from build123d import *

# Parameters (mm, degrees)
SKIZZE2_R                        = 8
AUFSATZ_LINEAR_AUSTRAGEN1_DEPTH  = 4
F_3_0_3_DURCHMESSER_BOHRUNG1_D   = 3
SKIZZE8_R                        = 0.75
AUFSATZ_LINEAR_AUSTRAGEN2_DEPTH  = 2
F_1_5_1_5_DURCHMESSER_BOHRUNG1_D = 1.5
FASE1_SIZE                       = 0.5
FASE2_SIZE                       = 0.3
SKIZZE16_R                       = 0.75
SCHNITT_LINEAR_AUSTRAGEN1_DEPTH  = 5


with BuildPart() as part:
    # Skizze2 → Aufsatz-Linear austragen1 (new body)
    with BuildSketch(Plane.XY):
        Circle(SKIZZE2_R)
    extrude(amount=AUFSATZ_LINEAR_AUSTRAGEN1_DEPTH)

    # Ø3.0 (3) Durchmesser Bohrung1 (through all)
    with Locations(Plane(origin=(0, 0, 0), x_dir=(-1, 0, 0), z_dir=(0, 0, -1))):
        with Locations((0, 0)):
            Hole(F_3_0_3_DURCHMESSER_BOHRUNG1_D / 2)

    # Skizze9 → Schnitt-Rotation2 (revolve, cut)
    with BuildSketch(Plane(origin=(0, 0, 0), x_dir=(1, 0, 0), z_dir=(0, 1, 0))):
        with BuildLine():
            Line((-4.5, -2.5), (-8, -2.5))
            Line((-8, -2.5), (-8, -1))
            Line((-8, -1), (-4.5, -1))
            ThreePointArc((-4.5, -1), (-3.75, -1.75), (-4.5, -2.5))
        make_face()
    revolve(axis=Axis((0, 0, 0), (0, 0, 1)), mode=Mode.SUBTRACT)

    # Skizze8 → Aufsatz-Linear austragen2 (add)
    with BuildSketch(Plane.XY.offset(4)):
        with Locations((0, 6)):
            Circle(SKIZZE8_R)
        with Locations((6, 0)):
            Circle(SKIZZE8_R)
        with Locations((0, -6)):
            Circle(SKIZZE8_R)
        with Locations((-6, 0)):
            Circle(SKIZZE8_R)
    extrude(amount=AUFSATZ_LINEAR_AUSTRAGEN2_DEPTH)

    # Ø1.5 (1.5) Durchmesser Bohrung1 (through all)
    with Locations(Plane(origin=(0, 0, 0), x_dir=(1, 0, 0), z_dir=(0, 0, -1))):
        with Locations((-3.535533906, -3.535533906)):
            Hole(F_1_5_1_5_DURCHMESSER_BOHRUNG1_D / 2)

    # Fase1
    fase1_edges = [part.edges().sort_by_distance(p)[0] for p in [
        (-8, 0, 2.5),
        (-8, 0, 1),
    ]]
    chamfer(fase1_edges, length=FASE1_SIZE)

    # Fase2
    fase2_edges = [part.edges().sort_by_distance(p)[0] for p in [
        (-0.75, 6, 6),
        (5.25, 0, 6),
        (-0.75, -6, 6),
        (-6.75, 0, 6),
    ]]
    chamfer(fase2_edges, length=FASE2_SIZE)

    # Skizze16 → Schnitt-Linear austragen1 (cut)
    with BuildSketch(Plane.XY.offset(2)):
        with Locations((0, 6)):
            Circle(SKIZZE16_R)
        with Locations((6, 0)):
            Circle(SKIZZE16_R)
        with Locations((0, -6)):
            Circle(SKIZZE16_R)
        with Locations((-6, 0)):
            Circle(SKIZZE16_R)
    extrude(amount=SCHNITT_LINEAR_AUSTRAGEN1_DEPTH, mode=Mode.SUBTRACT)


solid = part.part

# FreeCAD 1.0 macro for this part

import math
import FreeCAD as App
import Part
import Sketcher

V = App.Vector


def edges_at(feature, points):
    """Names of the edges that pass closest to the given points."""
    edges = feature.Shape.Edges
    near = lambda p: min(range(len(edges)), key=lambda i: edges[i].distToShape(Part.Vertex(*p))[0])
    return sorted({f"Edge{near(p) + 1}" for p in points})

doc = App.newDocument("Part")
body = doc.addObject("PartDesign::Body", "Body")

sketch1 = body.newObject("Sketcher::SketchObject", "Sketch")
sketch1.AttachmentSupport = (doc.getObject("XY_Plane"), [""])
sketch1.MapMode = "FlatFace"
sketch1.addGeometry(Part.Circle(V(0, 0, 0), V(0, 0, 1), 8), False)
sketch1.addConstraint([
    Sketcher.Constraint("Coincident", 0, 3, -1, 1),
    Sketcher.Constraint("Diameter", 0, 16.0),
])
pad1 = body.newObject("PartDesign::Pad", "Pad")
pad1.Profile = sketch1
pad1.Length = 4

sketch2 = body.newObject("Sketcher::SketchObject", "Sketch001")
sketch2.AttachmentSupport = (doc.getObject("XY_Plane"), [""])
sketch2.MapMode = "FlatFace"
sketch2.addGeometry(Part.Circle(V(0, 0, 0), V(0, 0, 1), 1.5), False)
sketch2.addConstraint([
    Sketcher.Constraint("Coincident", 0, 3, -1, 1),
    Sketcher.Constraint("Diameter", 0, 3.0),
])
doc.recompute()
hole = body.newObject("PartDesign::Hole", "Hole")
hole.Profile = sketch2
hole.ThreadType = "None"
hole.Diameter = 3
hole.DepthType = "ThroughAll"
hole.Reversed = True

sketch3 = body.newObject("Sketcher::SketchObject", "Sketch002")
sketch3.AttachmentSupport = (doc.getObject("XZ_Plane"), [""])
sketch3.MapMode = "FlatFace"
sketch3.addGeometry([
    Part.LineSegment(V(-8, 2.5, 0), V(-4.5, 2.5, 0)),
    Part.ArcOfCircle(Part.Circle(V(-4.5, 1.75, 0), V(0, 0, 1), 0.75), math.radians(-90), math.radians(90)),
    Part.LineSegment(V(-4.5, 1, 0), V(-8, 1, 0)),
    Part.LineSegment(V(-8, 1, 0), V(-8, 2.5, 0)),
], False)
sketch3.addConstraint([
    Sketcher.Constraint("Tangent", 0, 2, 1, 2),
    Sketcher.Constraint("Tangent", 1, 1, 2, 1),
    Sketcher.Constraint("Coincident", 2, 2, 3, 1),
    Sketcher.Constraint("Coincident", 3, 2, 0, 1),
    Sketcher.Constraint("Horizontal", 0),
    Sketcher.Constraint("Horizontal", 2),
    Sketcher.Constraint("Vertical", 3),
    Sketcher.Constraint("Radius", 1, 0.75),
    Sketcher.Constraint("DistanceX", 0, 1, 0, 2, 3.5),
    Sketcher.Constraint("DistanceY", -1, 1, 1, 1, 1.0),
    Sketcher.Constraint("DistanceX", 2, 2, -1, 1, 8.0),
])
groove = body.newObject("PartDesign::Groove", "Groove")
groove.Profile = sketch3
groove.ReferenceAxis = (sketch3, ["V_Axis"])
groove.Angle = 360

sketch4 = body.newObject("Sketcher::SketchObject", "Sketch003")
sketch4.AttachmentSupport = (doc.getObject("XY_Plane"), [""])
sketch4.MapMode = "FlatFace"
sketch4.AttachmentOffset = App.Placement(V(0, 0, 4), App.Rotation())
sketch4.addGeometry([
    Part.Circle(V(0, 6, 0), V(0, 0, 1), 0.75),
    Part.Circle(V(6, 0, 0), V(0, 0, 1), 0.75),
    Part.Circle(V(0, -6, 0), V(0, 0, 1), 0.75),
    Part.Circle(V(-6, 0, 0), V(0, 0, 1), 0.75),
], False)
sketch4.addConstraint([
    Sketcher.Constraint("Equal", 0, 1),
    Sketcher.Constraint("Equal", 1, 2),
    Sketcher.Constraint("Equal", 2, 3),
    Sketcher.Constraint("Symmetric", 0, 3, 2, 3, -1, 1),
    Sketcher.Constraint("Symmetric", 1, 3, 3, 3, -1, 1),
    Sketcher.Constraint("PointOnObject", 0, 3, -2),
    Sketcher.Constraint("PointOnObject", 1, 3, -1),
    Sketcher.Constraint("Diameter", 0, 1.5),
    Sketcher.Constraint("DistanceY", -1, 1, 0, 3, 6.0),
    Sketcher.Constraint("DistanceX", -1, 1, 1, 3, 6.0),
])
pad2 = body.newObject("PartDesign::Pad", "Pad001")
pad2.Profile = sketch4
pad2.Length = 2

sketch5 = body.newObject("Sketcher::SketchObject", "Sketch004")
sketch5.AttachmentSupport = (doc.getObject("XY_Plane"), [""])
sketch5.MapMode = "FlatFace"
sketch5.addGeometry(Part.Circle(V(-3.535534, 3.535534, 0), V(0, 0, 1), 0.75), False)
sketch5.addConstraint([
    Sketcher.Constraint("Diameter", 0, 1.5),
    Sketcher.Constraint("DistanceX", 0, 3, -1, 1, 3.535534),
    Sketcher.Constraint("DistanceY", -1, 1, 0, 3, 3.535534),
])
doc.recompute()
hole2 = body.newObject("PartDesign::Hole", "Hole001")
hole2.Profile = sketch5
hole2.ThreadType = "None"
hole2.Diameter = 1.5
hole2.DepthType = "ThroughAll"
hole2.Reversed = True
doc.recompute()

chamfer = body.newObject("PartDesign::Chamfer", "Chamfer")
chamfer.Base = (hole2, edges_at(hole2, [(-8, 0, 2.5), (-8, 0, 1)]))
chamfer.Size = 0.5
doc.recompute()

chamfer2 = body.newObject("PartDesign::Chamfer", "Chamfer001")
chamfer2.Base = (chamfer, edges_at(chamfer, [
    (-0.75, 6, 6),
    (5.25, 0, 6),
    (-0.75, -6, 6),
    (-6.75, 0, 6),
]))
chamfer2.Size = 0.3

sketch6 = body.newObject("Sketcher::SketchObject", "Sketch005")
sketch6.AttachmentSupport = (doc.getObject("XY_Plane"), [""])
sketch6.MapMode = "FlatFace"
sketch6.AttachmentOffset = App.Placement(V(0, 0, 2), App.Rotation())
sketch6.addGeometry([
    Part.Circle(V(0, 6, 0), V(0, 0, 1), 0.75),
    Part.Circle(V(6, 0, 0), V(0, 0, 1), 0.75),
    Part.Circle(V(0, -6, 0), V(0, 0, 1), 0.75),
    Part.Circle(V(-6, 0, 0), V(0, 0, 1), 0.75),
], False)
sketch6.addConstraint([
    Sketcher.Constraint("Equal", 0, 1),
    Sketcher.Constraint("Equal", 1, 2),
    Sketcher.Constraint("Equal", 2, 3),
    Sketcher.Constraint("Symmetric", 0, 3, 2, 3, -1, 1),
    Sketcher.Constraint("Symmetric", 1, 3, 3, 3, -1, 1),
    Sketcher.Constraint("PointOnObject", 0, 3, -2),
    Sketcher.Constraint("PointOnObject", 1, 3, -1),
    Sketcher.Constraint("Diameter", 0, 1.5),
    Sketcher.Constraint("DistanceY", -1, 1, 0, 3, 6.0),
    Sketcher.Constraint("DistanceX", -1, 1, 1, 3, 6.0),
])
pocket1 = body.newObject("PartDesign::Pocket", "Pocket")
pocket1.Profile = sketch6
pocket1.Length = 5
pocket1.Reversed = True

doc.recompute()
